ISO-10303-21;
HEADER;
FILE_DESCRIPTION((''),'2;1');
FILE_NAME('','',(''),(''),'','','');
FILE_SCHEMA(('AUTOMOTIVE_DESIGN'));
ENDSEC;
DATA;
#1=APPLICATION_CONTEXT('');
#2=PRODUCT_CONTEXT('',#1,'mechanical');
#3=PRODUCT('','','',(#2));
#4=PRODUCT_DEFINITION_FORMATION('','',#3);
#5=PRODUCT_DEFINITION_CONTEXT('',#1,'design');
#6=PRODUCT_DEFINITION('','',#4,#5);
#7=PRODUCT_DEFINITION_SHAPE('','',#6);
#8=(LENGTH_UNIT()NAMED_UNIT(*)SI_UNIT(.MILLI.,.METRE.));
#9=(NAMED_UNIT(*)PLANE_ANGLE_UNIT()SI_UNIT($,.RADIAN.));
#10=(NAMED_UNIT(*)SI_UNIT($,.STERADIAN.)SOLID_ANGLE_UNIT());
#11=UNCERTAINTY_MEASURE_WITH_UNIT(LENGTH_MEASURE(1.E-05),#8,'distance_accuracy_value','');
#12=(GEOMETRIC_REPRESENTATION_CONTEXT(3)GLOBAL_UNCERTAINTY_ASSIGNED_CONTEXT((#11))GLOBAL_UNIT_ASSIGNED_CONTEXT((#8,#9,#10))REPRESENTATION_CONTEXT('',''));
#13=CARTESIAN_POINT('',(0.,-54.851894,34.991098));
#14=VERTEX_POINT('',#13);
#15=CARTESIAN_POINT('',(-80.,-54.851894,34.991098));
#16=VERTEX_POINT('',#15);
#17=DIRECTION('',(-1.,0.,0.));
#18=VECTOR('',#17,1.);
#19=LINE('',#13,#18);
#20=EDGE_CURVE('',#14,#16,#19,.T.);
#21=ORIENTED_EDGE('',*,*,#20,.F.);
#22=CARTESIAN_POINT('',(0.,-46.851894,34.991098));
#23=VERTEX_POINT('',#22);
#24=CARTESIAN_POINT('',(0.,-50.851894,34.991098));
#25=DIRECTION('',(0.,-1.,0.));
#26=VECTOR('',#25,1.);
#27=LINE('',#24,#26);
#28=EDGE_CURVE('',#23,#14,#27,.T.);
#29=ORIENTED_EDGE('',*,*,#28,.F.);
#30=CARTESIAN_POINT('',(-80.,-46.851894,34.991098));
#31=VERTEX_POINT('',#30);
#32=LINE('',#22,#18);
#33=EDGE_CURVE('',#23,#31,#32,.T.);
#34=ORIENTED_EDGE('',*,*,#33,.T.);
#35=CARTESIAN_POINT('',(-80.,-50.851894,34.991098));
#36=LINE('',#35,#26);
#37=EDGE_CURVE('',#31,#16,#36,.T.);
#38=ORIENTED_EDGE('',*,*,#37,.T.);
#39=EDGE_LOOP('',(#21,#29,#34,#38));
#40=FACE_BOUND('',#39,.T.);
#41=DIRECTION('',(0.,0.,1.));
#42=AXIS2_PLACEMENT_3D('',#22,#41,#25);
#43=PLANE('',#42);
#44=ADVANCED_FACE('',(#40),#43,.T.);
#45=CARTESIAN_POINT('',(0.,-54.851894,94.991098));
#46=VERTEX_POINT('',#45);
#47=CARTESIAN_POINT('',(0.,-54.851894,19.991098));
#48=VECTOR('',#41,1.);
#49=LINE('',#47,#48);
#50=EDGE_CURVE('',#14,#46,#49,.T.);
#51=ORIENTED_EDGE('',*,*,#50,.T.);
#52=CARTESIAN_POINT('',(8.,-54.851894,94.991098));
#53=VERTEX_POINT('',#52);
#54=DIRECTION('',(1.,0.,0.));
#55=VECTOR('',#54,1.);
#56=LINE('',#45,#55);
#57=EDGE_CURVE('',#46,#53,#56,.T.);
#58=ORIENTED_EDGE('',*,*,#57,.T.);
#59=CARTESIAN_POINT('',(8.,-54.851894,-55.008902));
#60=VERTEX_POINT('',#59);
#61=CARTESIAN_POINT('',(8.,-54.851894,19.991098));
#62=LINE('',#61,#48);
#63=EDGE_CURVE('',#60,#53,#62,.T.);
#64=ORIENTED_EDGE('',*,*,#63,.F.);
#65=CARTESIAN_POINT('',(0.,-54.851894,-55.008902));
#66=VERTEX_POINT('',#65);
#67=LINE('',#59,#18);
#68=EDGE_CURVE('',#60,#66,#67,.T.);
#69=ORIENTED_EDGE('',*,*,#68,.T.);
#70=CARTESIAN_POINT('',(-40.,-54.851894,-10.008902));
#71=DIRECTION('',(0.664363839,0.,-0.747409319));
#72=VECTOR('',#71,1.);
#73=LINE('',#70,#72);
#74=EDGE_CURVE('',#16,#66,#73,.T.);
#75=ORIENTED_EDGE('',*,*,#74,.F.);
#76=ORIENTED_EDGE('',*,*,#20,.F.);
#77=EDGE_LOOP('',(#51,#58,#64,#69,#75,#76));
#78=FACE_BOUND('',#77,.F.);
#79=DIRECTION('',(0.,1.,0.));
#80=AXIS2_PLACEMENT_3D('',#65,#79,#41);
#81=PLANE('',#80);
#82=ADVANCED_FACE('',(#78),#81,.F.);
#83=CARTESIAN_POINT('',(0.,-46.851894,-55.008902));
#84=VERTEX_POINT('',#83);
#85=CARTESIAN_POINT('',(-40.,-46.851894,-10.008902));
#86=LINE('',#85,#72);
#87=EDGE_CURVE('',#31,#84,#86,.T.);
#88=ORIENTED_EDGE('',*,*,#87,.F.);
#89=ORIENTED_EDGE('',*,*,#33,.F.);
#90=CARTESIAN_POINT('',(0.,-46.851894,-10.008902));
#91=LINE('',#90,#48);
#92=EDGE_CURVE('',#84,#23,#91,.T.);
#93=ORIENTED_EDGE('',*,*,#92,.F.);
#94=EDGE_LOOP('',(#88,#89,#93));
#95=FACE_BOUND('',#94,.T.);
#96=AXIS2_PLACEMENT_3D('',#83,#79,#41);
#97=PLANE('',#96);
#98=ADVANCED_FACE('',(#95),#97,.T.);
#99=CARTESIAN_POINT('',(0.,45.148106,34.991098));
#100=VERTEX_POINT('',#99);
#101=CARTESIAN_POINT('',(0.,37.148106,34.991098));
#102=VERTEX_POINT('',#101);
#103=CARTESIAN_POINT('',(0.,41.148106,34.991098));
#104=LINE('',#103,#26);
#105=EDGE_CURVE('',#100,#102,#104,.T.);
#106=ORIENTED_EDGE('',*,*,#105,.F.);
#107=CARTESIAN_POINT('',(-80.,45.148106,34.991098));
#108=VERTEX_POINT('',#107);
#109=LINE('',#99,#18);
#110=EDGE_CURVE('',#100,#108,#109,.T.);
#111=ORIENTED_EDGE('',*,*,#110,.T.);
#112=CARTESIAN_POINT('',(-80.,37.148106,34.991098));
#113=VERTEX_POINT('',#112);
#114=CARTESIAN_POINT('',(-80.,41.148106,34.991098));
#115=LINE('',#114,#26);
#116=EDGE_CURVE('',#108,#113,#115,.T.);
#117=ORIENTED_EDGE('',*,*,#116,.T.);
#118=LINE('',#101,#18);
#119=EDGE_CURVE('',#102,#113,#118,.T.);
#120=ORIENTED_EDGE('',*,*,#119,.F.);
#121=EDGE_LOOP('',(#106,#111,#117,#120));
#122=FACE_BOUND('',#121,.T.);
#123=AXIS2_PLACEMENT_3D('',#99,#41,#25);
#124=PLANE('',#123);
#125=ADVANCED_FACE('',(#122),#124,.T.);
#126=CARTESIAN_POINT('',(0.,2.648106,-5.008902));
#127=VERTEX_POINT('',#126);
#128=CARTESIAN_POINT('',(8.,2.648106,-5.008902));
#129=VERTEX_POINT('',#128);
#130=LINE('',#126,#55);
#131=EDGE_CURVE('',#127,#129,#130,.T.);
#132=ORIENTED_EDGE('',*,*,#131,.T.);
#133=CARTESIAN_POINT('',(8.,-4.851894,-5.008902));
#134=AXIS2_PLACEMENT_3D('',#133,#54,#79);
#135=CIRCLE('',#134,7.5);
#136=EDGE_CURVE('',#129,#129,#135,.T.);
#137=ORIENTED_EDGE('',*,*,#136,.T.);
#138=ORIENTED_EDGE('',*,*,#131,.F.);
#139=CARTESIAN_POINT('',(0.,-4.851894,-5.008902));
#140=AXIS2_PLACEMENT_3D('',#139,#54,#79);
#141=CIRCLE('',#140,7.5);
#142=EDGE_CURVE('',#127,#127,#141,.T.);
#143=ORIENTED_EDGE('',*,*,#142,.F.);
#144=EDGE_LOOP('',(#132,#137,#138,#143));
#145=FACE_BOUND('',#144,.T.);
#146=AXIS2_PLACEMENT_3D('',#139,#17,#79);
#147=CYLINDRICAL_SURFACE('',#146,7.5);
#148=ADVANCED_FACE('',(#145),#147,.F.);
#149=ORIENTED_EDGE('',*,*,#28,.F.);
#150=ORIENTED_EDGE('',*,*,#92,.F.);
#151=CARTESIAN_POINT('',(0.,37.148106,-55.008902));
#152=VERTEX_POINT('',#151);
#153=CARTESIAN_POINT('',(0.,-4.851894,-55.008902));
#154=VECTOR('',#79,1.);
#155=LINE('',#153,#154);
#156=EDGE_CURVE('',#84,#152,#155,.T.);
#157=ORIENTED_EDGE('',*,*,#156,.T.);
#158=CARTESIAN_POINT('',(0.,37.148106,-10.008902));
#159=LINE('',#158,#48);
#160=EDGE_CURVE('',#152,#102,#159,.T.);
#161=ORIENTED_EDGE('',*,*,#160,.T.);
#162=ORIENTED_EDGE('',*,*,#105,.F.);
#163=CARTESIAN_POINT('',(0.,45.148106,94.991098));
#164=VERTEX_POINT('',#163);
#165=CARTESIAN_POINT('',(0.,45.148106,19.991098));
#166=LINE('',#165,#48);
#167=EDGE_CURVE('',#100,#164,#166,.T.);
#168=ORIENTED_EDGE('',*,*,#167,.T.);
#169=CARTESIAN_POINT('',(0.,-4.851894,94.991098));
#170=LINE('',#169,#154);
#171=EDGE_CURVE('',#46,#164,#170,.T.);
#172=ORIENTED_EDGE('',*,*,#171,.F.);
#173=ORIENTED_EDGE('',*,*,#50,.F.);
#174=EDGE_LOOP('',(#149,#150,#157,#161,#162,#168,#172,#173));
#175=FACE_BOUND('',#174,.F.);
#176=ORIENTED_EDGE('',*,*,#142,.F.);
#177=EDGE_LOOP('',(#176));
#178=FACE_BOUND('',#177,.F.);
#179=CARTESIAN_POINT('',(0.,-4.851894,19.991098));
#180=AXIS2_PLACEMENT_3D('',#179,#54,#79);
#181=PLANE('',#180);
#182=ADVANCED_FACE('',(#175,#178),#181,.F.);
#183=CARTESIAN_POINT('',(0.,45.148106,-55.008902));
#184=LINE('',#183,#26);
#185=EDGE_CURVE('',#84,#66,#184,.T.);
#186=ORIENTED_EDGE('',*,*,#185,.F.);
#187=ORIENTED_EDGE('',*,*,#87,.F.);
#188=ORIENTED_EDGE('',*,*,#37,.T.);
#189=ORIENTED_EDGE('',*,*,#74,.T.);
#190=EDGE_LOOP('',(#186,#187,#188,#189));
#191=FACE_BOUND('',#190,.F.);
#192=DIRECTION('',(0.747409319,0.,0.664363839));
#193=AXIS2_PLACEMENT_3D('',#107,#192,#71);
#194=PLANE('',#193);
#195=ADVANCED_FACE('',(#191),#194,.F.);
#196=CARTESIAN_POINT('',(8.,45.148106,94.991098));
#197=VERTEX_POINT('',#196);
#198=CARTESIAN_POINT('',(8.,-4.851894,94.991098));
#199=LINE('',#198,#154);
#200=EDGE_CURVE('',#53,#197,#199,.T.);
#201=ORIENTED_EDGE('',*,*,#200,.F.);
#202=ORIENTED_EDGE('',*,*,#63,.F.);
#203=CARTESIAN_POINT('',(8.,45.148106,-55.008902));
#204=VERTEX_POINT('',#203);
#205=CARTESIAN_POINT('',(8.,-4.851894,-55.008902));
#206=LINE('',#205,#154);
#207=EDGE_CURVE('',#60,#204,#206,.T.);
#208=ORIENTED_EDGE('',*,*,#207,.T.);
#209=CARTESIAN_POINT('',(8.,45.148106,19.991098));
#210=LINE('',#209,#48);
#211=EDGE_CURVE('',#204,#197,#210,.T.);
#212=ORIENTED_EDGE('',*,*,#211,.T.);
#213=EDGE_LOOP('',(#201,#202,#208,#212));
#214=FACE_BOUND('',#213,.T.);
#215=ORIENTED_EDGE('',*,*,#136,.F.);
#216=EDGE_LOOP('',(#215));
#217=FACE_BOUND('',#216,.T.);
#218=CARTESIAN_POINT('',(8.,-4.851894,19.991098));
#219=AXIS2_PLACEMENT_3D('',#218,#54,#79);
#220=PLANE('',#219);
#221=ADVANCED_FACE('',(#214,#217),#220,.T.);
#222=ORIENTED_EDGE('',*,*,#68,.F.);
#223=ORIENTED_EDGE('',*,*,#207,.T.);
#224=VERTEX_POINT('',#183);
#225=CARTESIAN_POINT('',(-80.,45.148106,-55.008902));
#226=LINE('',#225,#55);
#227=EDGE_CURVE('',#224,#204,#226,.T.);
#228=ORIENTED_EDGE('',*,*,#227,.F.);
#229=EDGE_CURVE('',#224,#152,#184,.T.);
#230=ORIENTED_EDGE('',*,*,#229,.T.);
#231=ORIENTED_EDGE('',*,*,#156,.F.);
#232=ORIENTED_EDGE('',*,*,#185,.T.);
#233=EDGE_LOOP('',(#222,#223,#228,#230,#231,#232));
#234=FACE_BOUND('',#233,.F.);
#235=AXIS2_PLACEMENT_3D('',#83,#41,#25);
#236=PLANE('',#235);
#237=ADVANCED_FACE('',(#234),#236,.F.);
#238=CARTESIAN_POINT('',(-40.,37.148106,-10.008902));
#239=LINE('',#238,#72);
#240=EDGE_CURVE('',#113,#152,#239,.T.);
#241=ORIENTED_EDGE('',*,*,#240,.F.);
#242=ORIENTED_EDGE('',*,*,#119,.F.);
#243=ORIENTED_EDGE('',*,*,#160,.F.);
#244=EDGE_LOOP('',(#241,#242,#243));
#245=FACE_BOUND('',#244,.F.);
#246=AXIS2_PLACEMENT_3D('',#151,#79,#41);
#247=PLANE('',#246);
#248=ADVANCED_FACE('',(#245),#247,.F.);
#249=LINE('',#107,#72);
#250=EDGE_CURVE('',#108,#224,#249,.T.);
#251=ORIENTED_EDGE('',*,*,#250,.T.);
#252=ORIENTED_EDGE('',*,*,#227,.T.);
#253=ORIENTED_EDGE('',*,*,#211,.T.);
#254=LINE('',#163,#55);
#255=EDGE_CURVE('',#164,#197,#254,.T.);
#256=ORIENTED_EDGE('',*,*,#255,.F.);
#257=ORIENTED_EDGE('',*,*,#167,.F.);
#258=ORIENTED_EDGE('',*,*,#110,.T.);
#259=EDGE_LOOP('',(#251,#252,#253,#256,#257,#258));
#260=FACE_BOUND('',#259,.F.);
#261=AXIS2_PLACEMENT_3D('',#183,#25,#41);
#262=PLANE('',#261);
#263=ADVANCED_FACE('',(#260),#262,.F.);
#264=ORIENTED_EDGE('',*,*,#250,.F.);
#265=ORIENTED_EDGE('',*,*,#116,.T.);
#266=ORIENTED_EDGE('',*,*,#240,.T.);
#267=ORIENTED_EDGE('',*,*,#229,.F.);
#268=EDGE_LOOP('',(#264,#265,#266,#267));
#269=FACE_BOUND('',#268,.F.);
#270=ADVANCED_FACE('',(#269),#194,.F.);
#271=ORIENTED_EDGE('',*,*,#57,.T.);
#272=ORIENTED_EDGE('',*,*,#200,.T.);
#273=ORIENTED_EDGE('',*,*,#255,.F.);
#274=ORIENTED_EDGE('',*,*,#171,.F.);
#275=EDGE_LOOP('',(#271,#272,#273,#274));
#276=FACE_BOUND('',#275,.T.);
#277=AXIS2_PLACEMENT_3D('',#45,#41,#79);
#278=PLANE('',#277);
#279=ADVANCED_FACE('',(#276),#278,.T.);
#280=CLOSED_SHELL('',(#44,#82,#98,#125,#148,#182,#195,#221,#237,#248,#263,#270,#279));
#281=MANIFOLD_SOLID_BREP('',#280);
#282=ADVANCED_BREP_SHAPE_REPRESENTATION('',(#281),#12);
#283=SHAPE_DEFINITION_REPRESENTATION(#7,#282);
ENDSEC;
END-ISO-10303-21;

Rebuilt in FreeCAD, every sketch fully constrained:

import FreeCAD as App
import Part
import Sketcher

V = App.Vector


def add_polygon(sketch, points):
    """Adds a closed chain of lines whose ends are joined by coincident constraints."""
    first, n = sketch.GeometryCount, len(points)
    for a, b in zip(points, points[1:] + points[:1]):
        sketch.addGeometry(Part.LineSegment(App.Vector(*a, 0), App.Vector(*b, 0)), False)
    for i in range(n):
        sketch.addConstraint(Sketcher.Constraint("Coincident", first + i, 2, first + (i + 1) % n, 1))

doc = App.newDocument("Part")
params = doc.addObject("Spreadsheet::Sheet", "Params")
for row, (alias, value) in enumerate([
    ("sketch1_diameter", "15 mm"),
    ("sketch1_width", "100 mm"),
    ("sketch1_height", "150 mm"),
    ("pad1_length", "8 mm"),
    ("sketch2_width", "8 mm"),
    ("sketch2_height", "90 mm"),
    ("pad2_length", "80 mm"),
    ("sketch3_width", "80 mm"),
    ("sketch3_height", "90 mm"),
], start=1):
    params.set(f"A{row}", alias)
    params.set(f"B{row}", "=" + value)
    params.setAlias(f"B{row}", alias)

body = doc.addObject("PartDesign::Body", "Body")

# Sketch on YZ plane
sketch1 = doc.addObject("Sketcher::SketchObject", "Sketch")
body.addObject(sketch1)
sketch1.AttachmentSupport = (doc.YZ_Plane, [""])
sketch1.MapMode = "FlatFace"
add_polygon(sketch1, [(-54.851894, 94.991098), (-54.851894, -55.008902), (45.148106, -55.008902), (45.148106, 94.991098)])  # lines 0-3
sketch1.addGeometry(Part.Circle(V(-4.851894, -5.008902, 0), V(0, 0, 1), 7.5), False)  # 4
sketch1.addConstraint([
    Sketcher.Constraint("Vertical", 0),
    Sketcher.Constraint("Horizontal", 1),
    Sketcher.Constraint("Vertical", 2),
    Sketcher.Constraint("Horizontal", 3),
    Sketcher.Constraint("Diameter", 4, 15.0),
    Sketcher.Constraint("DistanceX", 1, 1, 1, 2, 100.0),
    Sketcher.Constraint("DistanceY", 0, 2, 0, 1, 150.0),
    Sketcher.Constraint("DistanceX", 0, 2, 4, 3, 50.0),
    Sketcher.Constraint("DistanceY", 0, 2, 4, 3, 50.0),
    Sketcher.Constraint("DistanceX", 4, 3, -1, 1, 4.851894),
    Sketcher.Constraint("DistanceY", 4, 3, -1, 1, 5.008902),
])
sketch1.setExpression("Constraints[8]", "Params.sketch1_diameter")
sketch1.setExpression("Constraints[9]", "Params.sketch1_width")
sketch1.setExpression("Constraints[10]", "Params.sketch1_height")
pad1 = doc.addObject("PartDesign::Pad", "Pad")
body.addObject(pad1)
pad1.Profile = sketch1
pad1.setExpression("Length", "Params.pad1_length")

# Sketch on YZ plane
sketch2 = doc.addObject("Sketcher::SketchObject", "Sketch001")
body.addObject(sketch2)
sketch2.AttachmentSupport = (doc.YZ_Plane, [""])
sketch2.MapMode = "FlatFace"
add_polygon(sketch2, [(-46.851894, 34.991098), (-46.851894, -55.008902), (-54.851894, -55.008902), (-54.851894, 34.991098)])  # lines 0-3
add_polygon(sketch2, [(45.148106, 34.991098), (45.148106, -55.008902), (37.148106, -55.008902), (37.148106, 34.991098)])  # lines 4-7
sketch2.addConstraint([
    Sketcher.Constraint("Vertical", 0),
    Sketcher.Constraint("Horizontal", 1),
    Sketcher.Constraint("Vertical", 2),
    Sketcher.Constraint("Horizontal", 3),
    Sketcher.Constraint("Vertical", 4),
    Sketcher.Constraint("Horizontal", 5),
    Sketcher.Constraint("Vertical", 6),
    Sketcher.Constraint("Horizontal", 7),
    Sketcher.Constraint("Horizontal", 1, 2, 4, 2),
    Sketcher.Constraint("Horizontal", 3, 2, 6, 2),
    Sketcher.Constraint("Equal", 3, 5),
    Sketcher.Constraint("DistanceX", 1, 2, 1, 1, 8.0),
    Sketcher.Constraint("DistanceY", 0, 2, 0, 1, 90.0),
    Sketcher.Constraint("DistanceX", 0, 2, 4, 2, 92.0),
    Sketcher.Constraint("DistanceX", 0, 2, -1, 1, 46.851894),
    Sketcher.Constraint("DistanceY", 0, 2, -1, 1, 55.008902),
])
sketch2.setExpression("Constraints[19]", "Params.sketch2_width")
sketch2.setExpression("Constraints[20]", "Params.sketch2_height")
pad2 = doc.addObject("PartDesign::Pad", "Pad001")
body.addObject(pad2)
pad2.Profile = sketch2
pad2.setExpression("Length", "Params.pad2_length")
pad2.Reversed = True

# Sketch on XZ plane
sketch3 = doc.addObject("Sketcher::SketchObject", "Sketch002")
body.addObject(sketch3)
sketch3.AttachmentSupport = (doc.XZ_Plane, [""])
sketch3.MapMode = "FlatFace"
sketch3.AttachmentOffset = App.Placement(V(0, 0, -45.148106), App.Rotation())
add_polygon(sketch3, [(-80, -55.008902), (-80, 34.991098), (0, -55.008902)])  # lines 0-2
sketch3.addConstraint([
    Sketcher.Constraint("Vertical", 0),
    Sketcher.Constraint("Horizontal", 2),
    Sketcher.Constraint("PointOnObject", 1, 2, -2),
    Sketcher.Constraint("DistanceX", 2, 2, 2, 1, 80.0),
    Sketcher.Constraint("DistanceY", 0, 1, 0, 2, 90.0),
    Sketcher.Constraint("DistanceY", -1, 1, 0, 2, 34.991098),
])
sketch3.setExpression("Constraints[6]", "Params.sketch3_width")
sketch3.setExpression("Constraints[7]", "Params.sketch3_height")
pocket1 = doc.addObject("PartDesign::Pocket", "Pocket")
body.addObject(pocket1)
pocket1.Profile = sketch3
pocket1.Type = "ThroughAll"
pocket1.Reversed = True

doc.recompute()
